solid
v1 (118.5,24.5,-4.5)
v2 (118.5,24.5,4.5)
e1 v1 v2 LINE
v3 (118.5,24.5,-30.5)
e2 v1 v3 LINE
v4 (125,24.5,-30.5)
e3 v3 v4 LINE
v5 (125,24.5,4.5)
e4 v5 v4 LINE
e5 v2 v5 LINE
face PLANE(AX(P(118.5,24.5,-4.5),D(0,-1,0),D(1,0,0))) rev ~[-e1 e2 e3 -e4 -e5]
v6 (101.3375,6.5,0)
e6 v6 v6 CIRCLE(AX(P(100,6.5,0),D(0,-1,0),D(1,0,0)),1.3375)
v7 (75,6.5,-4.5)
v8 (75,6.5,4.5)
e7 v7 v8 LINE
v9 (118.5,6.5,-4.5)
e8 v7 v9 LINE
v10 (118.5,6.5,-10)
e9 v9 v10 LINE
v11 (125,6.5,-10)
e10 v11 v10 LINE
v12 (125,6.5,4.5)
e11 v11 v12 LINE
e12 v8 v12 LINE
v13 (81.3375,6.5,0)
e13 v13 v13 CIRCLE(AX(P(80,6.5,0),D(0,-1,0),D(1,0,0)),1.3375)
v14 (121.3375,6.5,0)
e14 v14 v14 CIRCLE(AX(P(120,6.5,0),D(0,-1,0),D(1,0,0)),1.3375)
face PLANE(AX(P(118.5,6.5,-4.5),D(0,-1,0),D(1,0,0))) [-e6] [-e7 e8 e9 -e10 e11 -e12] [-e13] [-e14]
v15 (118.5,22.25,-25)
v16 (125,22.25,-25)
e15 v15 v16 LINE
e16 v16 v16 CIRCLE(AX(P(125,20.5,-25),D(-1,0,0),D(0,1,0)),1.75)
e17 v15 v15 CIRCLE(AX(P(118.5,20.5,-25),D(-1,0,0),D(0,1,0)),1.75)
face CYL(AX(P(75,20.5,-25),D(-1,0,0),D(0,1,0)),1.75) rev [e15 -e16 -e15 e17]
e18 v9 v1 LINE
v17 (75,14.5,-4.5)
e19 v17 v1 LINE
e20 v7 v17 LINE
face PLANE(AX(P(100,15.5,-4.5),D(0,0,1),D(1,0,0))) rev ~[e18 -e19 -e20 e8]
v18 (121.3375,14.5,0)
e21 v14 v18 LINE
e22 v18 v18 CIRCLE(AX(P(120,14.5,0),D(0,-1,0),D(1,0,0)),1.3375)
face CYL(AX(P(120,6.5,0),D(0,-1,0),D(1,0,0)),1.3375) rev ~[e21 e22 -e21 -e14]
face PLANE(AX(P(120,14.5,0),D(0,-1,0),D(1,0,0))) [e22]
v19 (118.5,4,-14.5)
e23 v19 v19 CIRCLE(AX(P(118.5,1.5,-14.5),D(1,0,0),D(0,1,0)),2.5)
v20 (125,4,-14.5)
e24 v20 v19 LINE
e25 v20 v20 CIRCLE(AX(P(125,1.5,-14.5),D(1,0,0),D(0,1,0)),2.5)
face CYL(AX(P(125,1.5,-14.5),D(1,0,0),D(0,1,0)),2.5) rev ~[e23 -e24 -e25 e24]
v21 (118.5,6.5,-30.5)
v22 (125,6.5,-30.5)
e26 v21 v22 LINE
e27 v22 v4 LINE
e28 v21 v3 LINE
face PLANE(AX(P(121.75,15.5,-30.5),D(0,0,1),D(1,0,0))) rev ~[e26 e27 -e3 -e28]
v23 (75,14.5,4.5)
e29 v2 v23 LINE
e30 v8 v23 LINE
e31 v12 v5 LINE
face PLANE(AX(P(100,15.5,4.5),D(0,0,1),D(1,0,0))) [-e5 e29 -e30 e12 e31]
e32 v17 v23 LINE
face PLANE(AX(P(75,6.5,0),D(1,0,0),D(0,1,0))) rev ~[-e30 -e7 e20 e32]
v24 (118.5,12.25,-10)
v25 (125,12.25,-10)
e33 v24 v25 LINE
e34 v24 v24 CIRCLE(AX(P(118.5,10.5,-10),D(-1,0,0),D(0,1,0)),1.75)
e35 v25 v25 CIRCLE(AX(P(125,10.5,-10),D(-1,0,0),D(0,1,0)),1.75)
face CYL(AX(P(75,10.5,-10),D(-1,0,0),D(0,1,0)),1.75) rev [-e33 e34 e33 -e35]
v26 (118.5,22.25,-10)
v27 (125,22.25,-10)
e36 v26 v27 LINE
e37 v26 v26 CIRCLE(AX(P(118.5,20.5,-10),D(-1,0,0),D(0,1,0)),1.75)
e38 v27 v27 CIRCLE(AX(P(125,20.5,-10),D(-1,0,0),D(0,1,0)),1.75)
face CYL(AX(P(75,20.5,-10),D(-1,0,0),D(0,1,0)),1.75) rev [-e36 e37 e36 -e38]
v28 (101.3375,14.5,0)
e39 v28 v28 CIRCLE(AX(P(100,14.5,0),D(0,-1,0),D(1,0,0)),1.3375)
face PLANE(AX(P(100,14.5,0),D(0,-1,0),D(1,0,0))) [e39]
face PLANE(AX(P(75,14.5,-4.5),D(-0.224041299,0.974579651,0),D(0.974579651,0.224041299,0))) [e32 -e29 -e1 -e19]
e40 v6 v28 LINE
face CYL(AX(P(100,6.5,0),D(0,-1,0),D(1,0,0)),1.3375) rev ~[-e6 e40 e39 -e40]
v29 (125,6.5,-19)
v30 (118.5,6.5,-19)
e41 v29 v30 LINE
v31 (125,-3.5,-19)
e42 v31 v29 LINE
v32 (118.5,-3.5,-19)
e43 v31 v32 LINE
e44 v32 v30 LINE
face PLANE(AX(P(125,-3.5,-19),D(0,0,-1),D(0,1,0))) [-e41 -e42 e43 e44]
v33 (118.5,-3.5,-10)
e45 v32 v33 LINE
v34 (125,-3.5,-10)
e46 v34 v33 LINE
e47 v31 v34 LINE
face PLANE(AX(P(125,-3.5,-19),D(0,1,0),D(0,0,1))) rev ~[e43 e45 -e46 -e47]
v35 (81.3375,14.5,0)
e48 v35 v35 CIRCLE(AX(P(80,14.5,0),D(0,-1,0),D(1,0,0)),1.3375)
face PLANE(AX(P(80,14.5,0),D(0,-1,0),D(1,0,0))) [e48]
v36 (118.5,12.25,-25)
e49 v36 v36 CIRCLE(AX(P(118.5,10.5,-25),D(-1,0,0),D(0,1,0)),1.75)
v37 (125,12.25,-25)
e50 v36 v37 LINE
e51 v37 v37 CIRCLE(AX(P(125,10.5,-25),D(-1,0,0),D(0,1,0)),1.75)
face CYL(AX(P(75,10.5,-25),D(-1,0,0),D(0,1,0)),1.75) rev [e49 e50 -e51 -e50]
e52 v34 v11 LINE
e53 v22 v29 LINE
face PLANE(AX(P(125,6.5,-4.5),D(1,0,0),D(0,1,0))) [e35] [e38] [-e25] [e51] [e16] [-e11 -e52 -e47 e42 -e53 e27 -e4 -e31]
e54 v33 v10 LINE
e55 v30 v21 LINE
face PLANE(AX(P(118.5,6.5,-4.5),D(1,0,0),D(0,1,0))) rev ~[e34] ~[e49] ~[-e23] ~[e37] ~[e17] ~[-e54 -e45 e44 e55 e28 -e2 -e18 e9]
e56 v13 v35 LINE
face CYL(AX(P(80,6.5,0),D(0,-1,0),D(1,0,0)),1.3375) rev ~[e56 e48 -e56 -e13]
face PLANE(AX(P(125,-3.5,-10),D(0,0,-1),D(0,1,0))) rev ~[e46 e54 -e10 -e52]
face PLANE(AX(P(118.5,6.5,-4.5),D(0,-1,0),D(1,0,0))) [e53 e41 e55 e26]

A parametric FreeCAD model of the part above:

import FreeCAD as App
import Part
import Sketcher
from FreeCAD import Vector

doc = App.newDocument("Part")
body = doc.addObject("PartDesign::Body", "Body")

sketch1 = body.newObject("Sketcher::SketchObject", "Sketch")
sketch1.AttachmentSupport = (doc.getObject("XY_Plane"), [""])
sketch1.MapMode = "FlatFace"
sketch1.addGeometry(Part.LineSegment(Vector(0, 18, 0), Vector(0, 0, 0)), False)
sketch1.addGeometry(Part.LineSegment(Vector(0, 0, 0), Vector(50, 0, 0)), False)
sketch1.addGeometry(Part.LineSegment(Vector(50, 0, 0), Vector(50, 18, 0)), False)
sketch1.addGeometry(Part.LineSegment(Vector(50, 18, 0), Vector(0, 18, 0)), False)
sketch1.addConstraint(Sketcher.Constraint("Coincident", 0, 2, 1, 1))
sketch1.addConstraint(Sketcher.Constraint("Coincident", 1, 2, 2, 1))
sketch1.addConstraint(Sketcher.Constraint("Coincident", 2, 2, 3, 1))
sketch1.addConstraint(Sketcher.Constraint("Coincident", 3, 2, 0, 1))
sketch1.addConstraint(Sketcher.Constraint("Vertical", 0))
sketch1.addConstraint(Sketcher.Constraint("Horizontal", 1))
sketch1.addConstraint(Sketcher.Constraint("Vertical", 2))
sketch1.addConstraint(Sketcher.Constraint("Horizontal", 3))
sketch1.addConstraint(Sketcher.Constraint("Coincident", 0, 2, -1, 1))
sketch1.addConstraint(Sketcher.Constraint("DistanceX", 1, 1, 1, 2, 50.0))
sketch1.addConstraint(Sketcher.Constraint("DistanceY", 0, 2, 0, 1, 18.0))
pad1 = body.newObject("PartDesign::Pad", "Pad")
pad1.Profile = sketch1
pad1.Length = 9
pad1.Midplane = True

sketch2 = body.newObject("Sketcher::SketchObject", "Sketch001")
sketch2.AttachmentSupport = (doc.getObject("XZ_Plane"), [""])
sketch2.MapMode = "FlatFace"
sketch2.addGeometry(Part.Circle(Vector(5, 0, 0), Vector(0, 0, 1), 1.3375), False)
sketch2.addGeometry(Part.Circle(Vector(25, 0, 0), Vector(0, 0, 1), 1.3375), False)
sketch2.addGeometry(Part.Circle(Vector(45, 0, 0), Vector(0, 0, 1), 1.3375), False)
sketch2.addConstraint(Sketcher.Constraint("Equal", 0, 1))
sketch2.addConstraint(Sketcher.Constraint("Equal", 1, 2))
sketch2.addConstraint(Sketcher.Constraint("PointOnObject", 0, 3, -1))
sketch2.addConstraint(Sketcher.Constraint("PointOnObject", 1, 3, -1))
sketch2.addConstraint(Sketcher.Constraint("PointOnObject", 2, 3, -1))
sketch2.addConstraint(Sketcher.Constraint("Diameter", 0, 2.675))
sketch2.addConstraint(Sketcher.Constraint("DistanceX", -1, 1, 0, 3, 5.0))
sketch2.addConstraint(Sketcher.Constraint("DistanceX", -1, 1, 1, 3, 25.0))
sketch2.addConstraint(Sketcher.Constraint("DistanceX", -1, 1, 2, 3, 45.0))
pocket1 = body.newObject("PartDesign::Pocket", "Pocket")
pocket1.Profile = sketch2
pocket1.Length = 8

sketch3 = body.newObject("Sketcher::SketchObject", "Sketch002")
sketch3.AttachmentSupport = (doc.getObject("XY_Plane"), [""])
sketch3.MapMode = "FlatFace"
sketch3.AttachmentOffset = App.Placement(Vector(0, 0, -4.5), App.Rotation())
sketch3.addGeometry(Part.LineSegment(Vector(43.5, 18, 0), Vector(0, 8, 0)), False)
sketch3.addGeometry(Part.LineSegment(Vector(0, 8, 0), Vector(0, 18, 0)), False)
sketch3.addGeometry(Part.LineSegment(Vector(0, 18, 0), Vector(43.5, 18, 0)), False)
sketch3.addConstraint(Sketcher.Constraint("Coincident", 0, 2, 1, 1))
sketch3.addConstraint(Sketcher.Constraint("Coincident", 1, 2, 2, 1))
sketch3.addConstraint(Sketcher.Constraint("Coincident", 2, 2, 0, 1))
sketch3.addConstraint(Sketcher.Constraint("Vertical", 1))
sketch3.addConstraint(Sketcher.Constraint("Horizontal", 2))
sketch3.addConstraint(Sketcher.Constraint("PointOnObject", 0, 2, -2))
sketch3.addConstraint(Sketcher.Constraint("DistanceY", 1, 1, 1, 2, 10.0))
sketch3.addConstraint(Sketcher.Constraint("DistanceX", 2, 1, 2, 2, 43.5))
sketch3.addConstraint(Sketcher.Constraint("DistanceY", -1, 1, 0, 2, 8.0))
pocket2 = body.newObject("PartDesign::Pocket", "Pocket001")
pocket2.Profile = sketch3
pocket2.Type = "ThroughAll"
pocket2.Reversed = True

sketch4 = body.newObject("Sketcher::SketchObject", "Sketch003")
sketch4.AttachmentSupport = (doc.getObject("XY_Plane"), [""])
sketch4.MapMode = "FlatFace"
sketch4.AttachmentOffset = App.Placement(Vector(0, 0, -4.5), App.Rotation())
sketch4.addGeometry(Part.LineSegment(Vector(43.5, 18, 0), Vector(43.5, 0, 0)), False)
sketch4.addGeometry(Part.LineSegment(Vector(43.5, 0, 0), Vector(50, 0, 0)), False)
sketch4.addGeometry(Part.LineSegment(Vector(50, 0, 0), Vector(50, 18, 0)), False)
sketch4.addGeometry(Part.LineSegment(Vector(50, 18, 0), Vector(43.5, 18, 0)), False)
sketch4.addConstraint(Sketcher.Constraint("Coincident", 0, 2, 1, 1))
sketch4.addConstraint(Sketcher.Constraint("Coincident", 1, 2, 2, 1))
sketch4.addConstraint(Sketcher.Constraint("Coincident", 2, 2, 3, 1))
sketch4.addConstraint(Sketcher.Constraint("Coincident", 3, 2, 0, 1))
sketch4.addConstraint(Sketcher.Constraint("Vertical", 0))
sketch4.addConstraint(Sketcher.Constraint("Horizontal", 1))
sketch4.addConstraint(Sketcher.Constraint("Vertical", 2))
sketch4.addConstraint(Sketcher.Constraint("Horizontal", 3))
sketch4.addConstraint(Sketcher.Constraint("PointOnObject", 0, 2, -1))
sketch4.addConstraint(Sketcher.Constraint("DistanceY", 0, 2, 0, 1, 18.0))
sketch4.addConstraint(Sketcher.Constraint("DistanceX", 1, 1, 1, 2, 6.5))
sketch4.addConstraint(Sketcher.Constraint("DistanceX", -1, 1, 1, 2, 50.0))
pad2 = body.newObject("PartDesign::Pad", "Pad001")
pad2.Profile = sketch4
pad2.Length = 26
pad2.Reversed = True

sketch5 = body.newObject("Sketcher::SketchObject", "Sketch004")
sketch5.AttachmentSupport = (doc.getObject("YZ_Plane"), [""])
sketch5.MapMode = "FlatFace"
sketch5.addGeometry(Part.Circle(Vector(4, -25, 0), Vector(0, 0, 1), 1.75), False)
sketch5.addGeometry(Part.Circle(Vector(4, -10, 0), Vector(0, 0, 1), 1.75), False)
sketch5.addGeometry(Part.Circle(Vector(14, -10, 0), Vector(0, 0, 1), 1.75), False)
sketch5.addGeometry(Part.Circle(Vector(14, -25, 0), Vector(0, 0, 1), 1.75), False)
sketch5.addConstraint(Sketcher.Constraint("Equal", 0, 1))
sketch5.addConstraint(Sketcher.Constraint("Equal", 1, 2))
sketch5.addConstraint(Sketcher.Constraint("Equal", 2, 3))
sketch5.addConstraint(Sketcher.Constraint("Horizontal", 1, 3, 2, 3))
sketch5.addConstraint(Sketcher.Constraint("Horizontal", 0, 3, 3, 3))
sketch5.addConstraint(Sketcher.Constraint("Vertical", 0, 3, 1, 3))
sketch5.addConstraint(Sketcher.Constraint("Vertical", 2, 3, 3, 3))
sketch5.addConstraint(Sketcher.Constraint("Diameter", 0, 3.5))
sketch5.addConstraint(Sketcher.Constraint("DistanceX", -1, 1, 0, 3, 4.0))
sketch5.addConstraint(Sketcher.Constraint("DistanceY", 0, 3, -1, 1, 25.0))
sketch5.addConstraint(Sketcher.Constraint("DistanceY", 1, 3, -1, 1, 10.0))
sketch5.addConstraint(Sketcher.Constraint("DistanceX", -1, 1, 2, 3, 14.0))
pocket3 = body.newObject("PartDesign::Pocket", "Pocket002")
pocket3.Profile = sketch5
pocket3.Type = "ThroughAll"
pocket3.Midplane = True

sketch6 = body.newObject("Sketcher::SketchObject", "Sketch005")
sketch6.AttachmentSupport = (doc.getObject("YZ_Plane"), [""])
sketch6.MapMode = "FlatFace"
sketch6.AttachmentOffset = App.Placement(Vector(0, 0, 32), App.Rotation())
sketch6.addGeometry(Part.Circle(Vector(4, -10, 0), Vector(0, 0, 1), 3), False)
sketch6.addGeometry(Part.Circle(Vector(14, -10, 0), Vector(0, 0, 1), 3), False)
sketch6.addGeometry(Part.Circle(Vector(14, -25, 0), Vector(0, 0, 1), 3), False)
sketch6.addGeometry(Part.Circle(Vector(4, -25, 0), Vector(0, 0, 1), 3), False)
sketch6.addConstraint(Sketcher.Constraint("Equal", 0, 1))
sketch6.addConstraint(Sketcher.Constraint("Equal", 1, 2))
sketch6.addConstraint(Sketcher.Constraint("Equal", 2, 3))
sketch6.addConstraint(Sketcher.Constraint("Horizontal", 0, 3, 1, 3))
sketch6.addConstraint(Sketcher.Constraint("Horizontal", 2, 3, 3, 3))
sketch6.addConstraint(Sketcher.Constraint("Vertical", 1, 3, 2, 3))
sketch6.addConstraint(Sketcher.Constraint("Vertical", 0, 3, 3, 3))
sketch6.addConstraint(Sketcher.Constraint("Diameter", 0, 6.0))
sketch6.addConstraint(Sketcher.Constraint("DistanceX", -1, 1, 0, 3, 4.0))
sketch6.addConstraint(Sketcher.Constraint("DistanceY", 0, 3, -1, 1, 10.0))
sketch6.addConstraint(Sketcher.Constraint("DistanceX", -1, 1, 1, 3, 14.0))
sketch6.addConstraint(Sketcher.Constraint("DistanceY", 2, 3, -1, 1, 25.0))
pocket4 = body.newObject("PartDesign::Pocket", "Pocket003")
pocket4.Profile = sketch6
pocket4.Length = 10
pocket4.Midplane = True

sketch7 = body.newObject("Sketcher::SketchObject", "Sketch006")
sketch7.AttachmentSupport = (doc.getObject("YZ_Plane"), [""])
sketch7.MapMode = "FlatFace"
sketch7.AttachmentOffset = App.Placement(Vector(0, 0, 50), App.Rotation())
sketch7.addGeometry(Part.LineSegment(Vector(-10, -10, 0), Vector(-10, -19, 0)), False)
sketch7.addGeometry(Part.LineSegment(Vector(-10, -19, 0), Vector(0, -19, 0)), False)
sketch7.addGeometry(Part.LineSegment(Vector(0, -19, 0), Vector(0, -10, 0)), False)
sketch7.addGeometry(Part.LineSegment(Vector(0, -10, 0), Vector(-10, -10, 0)), False)
sketch7.addGeometry(Part.Circle(Vector(-5, -14.5, 0), Vector(0, 0, 1), 2.5), False)
sketch7.addConstraint(Sketcher.Constraint("Coincident", 0, 2, 1, 1))
sketch7.addConstraint(Sketcher.Constraint("Coincident", 1, 2, 2, 1))
sketch7.addConstraint(Sketcher.Constraint("Coincident", 2, 2, 3, 1))
sketch7.addConstraint(Sketcher.Constraint("Coincident", 3, 2, 0, 1))
sketch7.addConstraint(Sketcher.Constraint("Vertical", 0))
sketch7.addConstraint(Sketcher.Constraint("Horizontal", 1))
sketch7.addConstraint(Sketcher.Constraint("Vertical", 2))
sketch7.addConstraint(Sketcher.Constraint("Horizontal", 3))
sketch7.addConstraint(Sketcher.Constraint("PointOnObject", 1, 2, -2))
sketch7.addConstraint(Sketcher.Constraint("Diameter", 4, 5.0))
sketch7.addConstraint(Sketcher.Constraint("DistanceX", 1, 1, 1, 2, 10.0))
sketch7.addConstraint(Sketcher.Constraint("DistanceY", 0, 2, 0, 1, 9.0))
sketch7.addConstraint(Sketcher.Constraint("DistanceX", 4, 3, -1, 1, 5.0))
sketch7.addConstraint(Sketcher.Constraint("DistanceY", 0, 2, -1, 1, 19.0))
sketch7.addConstraint(Sketcher.Constraint("DistanceY", 4, 3, -1, 1, 14.5))
pad3 = body.newObject("PartDesign::Pad", "Pad002")
pad3.Profile = sketch7
pad3.Length = 6.5
pad3.Reversed = True
body2 = doc.addObject("PartDesign::Body", "Body001")
doc.recompute()

body.Placement = App.Placement(Vector(75, 6.5, 0), App.Rotation(Vector(0, 0, 1), 0))
boolean = body2.newObject("PartDesign::Boolean", "Boolean")
boolean.Type = "Fuse"
boolean.addObjects([body])

doc.recompute()
